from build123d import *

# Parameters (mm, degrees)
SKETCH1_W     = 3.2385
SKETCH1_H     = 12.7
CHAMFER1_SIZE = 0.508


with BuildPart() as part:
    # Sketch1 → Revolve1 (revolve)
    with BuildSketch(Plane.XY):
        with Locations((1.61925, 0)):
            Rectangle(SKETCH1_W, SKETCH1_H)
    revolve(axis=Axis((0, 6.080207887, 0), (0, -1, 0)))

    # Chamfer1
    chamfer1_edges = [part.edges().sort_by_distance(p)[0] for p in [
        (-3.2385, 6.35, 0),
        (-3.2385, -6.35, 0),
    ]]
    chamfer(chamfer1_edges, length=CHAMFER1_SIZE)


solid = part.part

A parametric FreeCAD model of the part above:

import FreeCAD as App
import Part
import Sketcher
Q = App.Units.Quantity


def edges_at(feature, points):
    """Names of the edges that pass closest to the given points."""
    edges = feature.Shape.Edges
    near = lambda p: min(range(len(edges)), key=lambda i: edges[i].distToShape(Part.Vertex(*p))[0])
    return sorted({f"Edge{near(p) + 1}" for p in points})

doc = App.newDocument("Part")
body = doc.addObject("PartDesign::Body", "Body")

sketch1 = body.newObject("Sketcher::SketchObject", "Sketch")
sketch1.AttachmentSupport = (doc.getObject("XY_Plane"), [""])
sketch1.MapMode = "FlatFace"
sketch1.addGeometry([
    Part.LineSegment(App.Vector(0, 6.35, 0), App.Vector(0, -6.35, 0)),
    Part.LineSegment(App.Vector(0, -6.35, 0), App.Vector(3.2385, -6.35, 0)),
    Part.LineSegment(App.Vector(3.2385, -6.35, 0), App.Vector(3.2385, 6.35, 0)),
    Part.LineSegment(App.Vector(3.2385, 6.35, 0), App.Vector(0, 6.35, 0)),
], False)
sketch1.addConstraint([
    Sketcher.Constraint("Coincident", 0, 2, 1, 1),
    Sketcher.Constraint("Coincident", 1, 2, 2, 1),
    Sketcher.Constraint("Coincident", 2, 2, 3, 1),
    Sketcher.Constraint("Coincident", 3, 2, 0, 1),
    Sketcher.Constraint("Vertical", 0),
    Sketcher.Constraint("Horizontal", 1),
    Sketcher.Constraint("Vertical", 2),
    Sketcher.Constraint("Horizontal", 3),
    Sketcher.Constraint("Symmetric", 0, 2, 3, 2, -1, 1),
    Sketcher.Constraint("DistanceY", 0, 2, 0, 1, Q("0.5 in")),
    Sketcher.Constraint("DistanceX", 1, 1, 1, 2, Q("0.1275 in")),
])
revolution = body.newObject("PartDesign::Revolution", "Revolution")
revolution.Profile = sketch1
revolution.ReferenceAxis = (sketch1, ["V_Axis"])
revolution.Angle = 360
doc.recompute()

chamfer = body.newObject("PartDesign::Chamfer", "Chamfer")
chamfer.Base = (revolution, edges_at(revolution, [(-3.239, 6.35, 0), (-3.239, -6.35, 0)]))
chamfer.Size = Q("0.02 in")

doc.recompute()
